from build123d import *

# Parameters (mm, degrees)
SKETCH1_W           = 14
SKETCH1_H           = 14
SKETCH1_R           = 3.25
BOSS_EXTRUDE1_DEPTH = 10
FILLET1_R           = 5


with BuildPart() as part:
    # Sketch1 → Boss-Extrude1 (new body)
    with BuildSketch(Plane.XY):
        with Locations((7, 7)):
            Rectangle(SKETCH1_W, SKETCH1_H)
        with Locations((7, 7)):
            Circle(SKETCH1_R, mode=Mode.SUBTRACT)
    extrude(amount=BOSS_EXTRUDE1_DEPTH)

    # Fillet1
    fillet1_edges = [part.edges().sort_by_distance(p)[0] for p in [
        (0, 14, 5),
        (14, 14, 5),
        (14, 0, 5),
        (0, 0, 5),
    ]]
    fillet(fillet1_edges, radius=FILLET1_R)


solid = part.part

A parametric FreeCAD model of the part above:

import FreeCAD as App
import Part
import Sketcher


def edges_at(feature, points):
    """Names of the edges that pass closest to the given points."""
    edges = feature.Shape.Edges
    near = lambda p: min(range(len(edges)), key=lambda i: edges[i].distToShape(Part.Vertex(*p))[0])
    return sorted({f"Edge{near(p) + 1}" for p in points})


def add_polygon(sketch, points):
    """Adds a closed chain of lines whose ends are joined by coincident constraints."""
    first, n = sketch.GeometryCount, len(points)
    for a, b in zip(points, points[1:] + points[:1]):
        sketch.addGeometry(Part.LineSegment(App.Vector(*a, 0), App.Vector(*b, 0)), False)
    for i in range(n):
        sketch.addConstraint(Sketcher.Constraint("Coincident", first + i, 2, first + (i + 1) % n, 1))

doc = App.newDocument("Part")
body = doc.addObject("PartDesign::Body", "Body")

# Sketch on XY plane
sketch1 = body.newObject("Sketcher::SketchObject", "Sketch")
sketch1.AttachmentSupport = (doc.getObject("XY_Plane"), [""])
sketch1.MapMode = "FlatFace"
add_polygon(sketch1, [(0, 14), (0, 0), (14, 0), (14, 14)])  # lines 0-3
sketch1.addGeometry(Part.Circle(App.Vector(7, 7, 0), App.Vector(0, 0, 1), 3.2), False)  # 4
sketch1.addConstraint(Sketcher.Constraint("Vertical", 0))
sketch1.addConstraint(Sketcher.Constraint("Horizontal", 1))
sketch1.addConstraint(Sketcher.Constraint("Vertical", 2))
sketch1.addConstraint(Sketcher.Constraint("Horizontal", 3))
sketch1.addConstraint(Sketcher.Constraint("Coincident", 0, 2, -1, 1))
sketch1.addConstraint(Sketcher.Constraint("Equal", 3, 0))
sketch1.addConstraint(Sketcher.Constraint("Diameter", 4, 6.5))
sketch1.addConstraint(Sketcher.Constraint("DistanceX", 1, 1, 1, 2, 14.0))
sketch1.addConstraint(Sketcher.Constraint("DistanceX", -1, 1, 4, 3, 7.0))
sketch1.addConstraint(Sketcher.Constraint("DistanceY", -1, 1, 4, 3, 7.0))
pad1 = body.newObject("PartDesign::Pad", "Pad")
pad1.Profile = sketch1
pad1.Length = 10
doc.recompute()

fillet = body.newObject("PartDesign::Fillet", "Fillet")
fillet.Base = (pad1, edges_at(pad1, [
    (0, 14, 5),
    (14, 14, 5),
    (14, 0, 5),
    (0, 0, 5),
]))
fillet.Radius = 5

doc.recompute()
